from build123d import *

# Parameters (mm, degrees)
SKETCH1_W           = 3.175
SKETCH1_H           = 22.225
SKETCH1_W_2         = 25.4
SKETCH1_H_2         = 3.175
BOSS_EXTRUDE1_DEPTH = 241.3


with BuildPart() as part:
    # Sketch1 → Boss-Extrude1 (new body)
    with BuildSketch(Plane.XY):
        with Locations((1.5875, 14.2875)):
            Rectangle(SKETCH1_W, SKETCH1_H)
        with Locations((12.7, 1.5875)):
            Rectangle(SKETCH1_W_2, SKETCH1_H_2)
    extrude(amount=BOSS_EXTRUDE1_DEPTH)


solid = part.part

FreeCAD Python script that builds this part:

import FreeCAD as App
import Part
import Sketcher
Q = App.Units.Quantity


def add_polygon(sketch, points):
    """Adds a closed chain of lines whose ends are joined by coincident constraints."""
    first, n = sketch.GeometryCount, len(points)
    for a, b in zip(points, points[1:] + points[:1]):
        sketch.addGeometry(Part.LineSegment(App.Vector(*a, 0), App.Vector(*b, 0)), False)
    for i in range(n):
        sketch.addConstraint(Sketcher.Constraint("Coincident", first + i, 2, first + (i + 1) % n, 1))

doc = App.newDocument("Part")
body = doc.addObject("PartDesign::Body", "Body")

# Sketch on XY plane
sketch1 = body.newObject("Sketcher::SketchObject", "Sketch")
sketch1.AttachmentSupport = (doc.getObject("XY_Plane"), [""])
sketch1.MapMode = "FlatFace"
add_polygon(sketch1, [(0, 25.4), (0, 0), (25.4, 0), (25.4, 3.2), (3.2, 3.2), (3.2, 25.4)])  # lines 0-5
sketch1.addConstraint([
    Sketcher.Constraint("Vertical", 0),
    Sketcher.Constraint("Horizontal", 1),
    Sketcher.Constraint("Vertical", 2),
    Sketcher.Constraint("Horizontal", 3),
    Sketcher.Constraint("Vertical", 4),
    Sketcher.Constraint("Horizontal", 5),
    Sketcher.Constraint("Coincident", 0, 2, -1, 1),
    Sketcher.Constraint("Equal", 1, 0),
    Sketcher.Constraint("Equal", 5, 2),
    Sketcher.Constraint("DistanceX", 1, 1, 1, 2, Q("1 in")),
    Sketcher.Constraint("DistanceX", 3, 2, 3, 1, Q("0.875 in")),
])
pad1 = body.newObject("PartDesign::Pad", "Pad")
pad1.Profile = sketch1
pad1.Length = Q("9.5 in")

doc.recompute()
